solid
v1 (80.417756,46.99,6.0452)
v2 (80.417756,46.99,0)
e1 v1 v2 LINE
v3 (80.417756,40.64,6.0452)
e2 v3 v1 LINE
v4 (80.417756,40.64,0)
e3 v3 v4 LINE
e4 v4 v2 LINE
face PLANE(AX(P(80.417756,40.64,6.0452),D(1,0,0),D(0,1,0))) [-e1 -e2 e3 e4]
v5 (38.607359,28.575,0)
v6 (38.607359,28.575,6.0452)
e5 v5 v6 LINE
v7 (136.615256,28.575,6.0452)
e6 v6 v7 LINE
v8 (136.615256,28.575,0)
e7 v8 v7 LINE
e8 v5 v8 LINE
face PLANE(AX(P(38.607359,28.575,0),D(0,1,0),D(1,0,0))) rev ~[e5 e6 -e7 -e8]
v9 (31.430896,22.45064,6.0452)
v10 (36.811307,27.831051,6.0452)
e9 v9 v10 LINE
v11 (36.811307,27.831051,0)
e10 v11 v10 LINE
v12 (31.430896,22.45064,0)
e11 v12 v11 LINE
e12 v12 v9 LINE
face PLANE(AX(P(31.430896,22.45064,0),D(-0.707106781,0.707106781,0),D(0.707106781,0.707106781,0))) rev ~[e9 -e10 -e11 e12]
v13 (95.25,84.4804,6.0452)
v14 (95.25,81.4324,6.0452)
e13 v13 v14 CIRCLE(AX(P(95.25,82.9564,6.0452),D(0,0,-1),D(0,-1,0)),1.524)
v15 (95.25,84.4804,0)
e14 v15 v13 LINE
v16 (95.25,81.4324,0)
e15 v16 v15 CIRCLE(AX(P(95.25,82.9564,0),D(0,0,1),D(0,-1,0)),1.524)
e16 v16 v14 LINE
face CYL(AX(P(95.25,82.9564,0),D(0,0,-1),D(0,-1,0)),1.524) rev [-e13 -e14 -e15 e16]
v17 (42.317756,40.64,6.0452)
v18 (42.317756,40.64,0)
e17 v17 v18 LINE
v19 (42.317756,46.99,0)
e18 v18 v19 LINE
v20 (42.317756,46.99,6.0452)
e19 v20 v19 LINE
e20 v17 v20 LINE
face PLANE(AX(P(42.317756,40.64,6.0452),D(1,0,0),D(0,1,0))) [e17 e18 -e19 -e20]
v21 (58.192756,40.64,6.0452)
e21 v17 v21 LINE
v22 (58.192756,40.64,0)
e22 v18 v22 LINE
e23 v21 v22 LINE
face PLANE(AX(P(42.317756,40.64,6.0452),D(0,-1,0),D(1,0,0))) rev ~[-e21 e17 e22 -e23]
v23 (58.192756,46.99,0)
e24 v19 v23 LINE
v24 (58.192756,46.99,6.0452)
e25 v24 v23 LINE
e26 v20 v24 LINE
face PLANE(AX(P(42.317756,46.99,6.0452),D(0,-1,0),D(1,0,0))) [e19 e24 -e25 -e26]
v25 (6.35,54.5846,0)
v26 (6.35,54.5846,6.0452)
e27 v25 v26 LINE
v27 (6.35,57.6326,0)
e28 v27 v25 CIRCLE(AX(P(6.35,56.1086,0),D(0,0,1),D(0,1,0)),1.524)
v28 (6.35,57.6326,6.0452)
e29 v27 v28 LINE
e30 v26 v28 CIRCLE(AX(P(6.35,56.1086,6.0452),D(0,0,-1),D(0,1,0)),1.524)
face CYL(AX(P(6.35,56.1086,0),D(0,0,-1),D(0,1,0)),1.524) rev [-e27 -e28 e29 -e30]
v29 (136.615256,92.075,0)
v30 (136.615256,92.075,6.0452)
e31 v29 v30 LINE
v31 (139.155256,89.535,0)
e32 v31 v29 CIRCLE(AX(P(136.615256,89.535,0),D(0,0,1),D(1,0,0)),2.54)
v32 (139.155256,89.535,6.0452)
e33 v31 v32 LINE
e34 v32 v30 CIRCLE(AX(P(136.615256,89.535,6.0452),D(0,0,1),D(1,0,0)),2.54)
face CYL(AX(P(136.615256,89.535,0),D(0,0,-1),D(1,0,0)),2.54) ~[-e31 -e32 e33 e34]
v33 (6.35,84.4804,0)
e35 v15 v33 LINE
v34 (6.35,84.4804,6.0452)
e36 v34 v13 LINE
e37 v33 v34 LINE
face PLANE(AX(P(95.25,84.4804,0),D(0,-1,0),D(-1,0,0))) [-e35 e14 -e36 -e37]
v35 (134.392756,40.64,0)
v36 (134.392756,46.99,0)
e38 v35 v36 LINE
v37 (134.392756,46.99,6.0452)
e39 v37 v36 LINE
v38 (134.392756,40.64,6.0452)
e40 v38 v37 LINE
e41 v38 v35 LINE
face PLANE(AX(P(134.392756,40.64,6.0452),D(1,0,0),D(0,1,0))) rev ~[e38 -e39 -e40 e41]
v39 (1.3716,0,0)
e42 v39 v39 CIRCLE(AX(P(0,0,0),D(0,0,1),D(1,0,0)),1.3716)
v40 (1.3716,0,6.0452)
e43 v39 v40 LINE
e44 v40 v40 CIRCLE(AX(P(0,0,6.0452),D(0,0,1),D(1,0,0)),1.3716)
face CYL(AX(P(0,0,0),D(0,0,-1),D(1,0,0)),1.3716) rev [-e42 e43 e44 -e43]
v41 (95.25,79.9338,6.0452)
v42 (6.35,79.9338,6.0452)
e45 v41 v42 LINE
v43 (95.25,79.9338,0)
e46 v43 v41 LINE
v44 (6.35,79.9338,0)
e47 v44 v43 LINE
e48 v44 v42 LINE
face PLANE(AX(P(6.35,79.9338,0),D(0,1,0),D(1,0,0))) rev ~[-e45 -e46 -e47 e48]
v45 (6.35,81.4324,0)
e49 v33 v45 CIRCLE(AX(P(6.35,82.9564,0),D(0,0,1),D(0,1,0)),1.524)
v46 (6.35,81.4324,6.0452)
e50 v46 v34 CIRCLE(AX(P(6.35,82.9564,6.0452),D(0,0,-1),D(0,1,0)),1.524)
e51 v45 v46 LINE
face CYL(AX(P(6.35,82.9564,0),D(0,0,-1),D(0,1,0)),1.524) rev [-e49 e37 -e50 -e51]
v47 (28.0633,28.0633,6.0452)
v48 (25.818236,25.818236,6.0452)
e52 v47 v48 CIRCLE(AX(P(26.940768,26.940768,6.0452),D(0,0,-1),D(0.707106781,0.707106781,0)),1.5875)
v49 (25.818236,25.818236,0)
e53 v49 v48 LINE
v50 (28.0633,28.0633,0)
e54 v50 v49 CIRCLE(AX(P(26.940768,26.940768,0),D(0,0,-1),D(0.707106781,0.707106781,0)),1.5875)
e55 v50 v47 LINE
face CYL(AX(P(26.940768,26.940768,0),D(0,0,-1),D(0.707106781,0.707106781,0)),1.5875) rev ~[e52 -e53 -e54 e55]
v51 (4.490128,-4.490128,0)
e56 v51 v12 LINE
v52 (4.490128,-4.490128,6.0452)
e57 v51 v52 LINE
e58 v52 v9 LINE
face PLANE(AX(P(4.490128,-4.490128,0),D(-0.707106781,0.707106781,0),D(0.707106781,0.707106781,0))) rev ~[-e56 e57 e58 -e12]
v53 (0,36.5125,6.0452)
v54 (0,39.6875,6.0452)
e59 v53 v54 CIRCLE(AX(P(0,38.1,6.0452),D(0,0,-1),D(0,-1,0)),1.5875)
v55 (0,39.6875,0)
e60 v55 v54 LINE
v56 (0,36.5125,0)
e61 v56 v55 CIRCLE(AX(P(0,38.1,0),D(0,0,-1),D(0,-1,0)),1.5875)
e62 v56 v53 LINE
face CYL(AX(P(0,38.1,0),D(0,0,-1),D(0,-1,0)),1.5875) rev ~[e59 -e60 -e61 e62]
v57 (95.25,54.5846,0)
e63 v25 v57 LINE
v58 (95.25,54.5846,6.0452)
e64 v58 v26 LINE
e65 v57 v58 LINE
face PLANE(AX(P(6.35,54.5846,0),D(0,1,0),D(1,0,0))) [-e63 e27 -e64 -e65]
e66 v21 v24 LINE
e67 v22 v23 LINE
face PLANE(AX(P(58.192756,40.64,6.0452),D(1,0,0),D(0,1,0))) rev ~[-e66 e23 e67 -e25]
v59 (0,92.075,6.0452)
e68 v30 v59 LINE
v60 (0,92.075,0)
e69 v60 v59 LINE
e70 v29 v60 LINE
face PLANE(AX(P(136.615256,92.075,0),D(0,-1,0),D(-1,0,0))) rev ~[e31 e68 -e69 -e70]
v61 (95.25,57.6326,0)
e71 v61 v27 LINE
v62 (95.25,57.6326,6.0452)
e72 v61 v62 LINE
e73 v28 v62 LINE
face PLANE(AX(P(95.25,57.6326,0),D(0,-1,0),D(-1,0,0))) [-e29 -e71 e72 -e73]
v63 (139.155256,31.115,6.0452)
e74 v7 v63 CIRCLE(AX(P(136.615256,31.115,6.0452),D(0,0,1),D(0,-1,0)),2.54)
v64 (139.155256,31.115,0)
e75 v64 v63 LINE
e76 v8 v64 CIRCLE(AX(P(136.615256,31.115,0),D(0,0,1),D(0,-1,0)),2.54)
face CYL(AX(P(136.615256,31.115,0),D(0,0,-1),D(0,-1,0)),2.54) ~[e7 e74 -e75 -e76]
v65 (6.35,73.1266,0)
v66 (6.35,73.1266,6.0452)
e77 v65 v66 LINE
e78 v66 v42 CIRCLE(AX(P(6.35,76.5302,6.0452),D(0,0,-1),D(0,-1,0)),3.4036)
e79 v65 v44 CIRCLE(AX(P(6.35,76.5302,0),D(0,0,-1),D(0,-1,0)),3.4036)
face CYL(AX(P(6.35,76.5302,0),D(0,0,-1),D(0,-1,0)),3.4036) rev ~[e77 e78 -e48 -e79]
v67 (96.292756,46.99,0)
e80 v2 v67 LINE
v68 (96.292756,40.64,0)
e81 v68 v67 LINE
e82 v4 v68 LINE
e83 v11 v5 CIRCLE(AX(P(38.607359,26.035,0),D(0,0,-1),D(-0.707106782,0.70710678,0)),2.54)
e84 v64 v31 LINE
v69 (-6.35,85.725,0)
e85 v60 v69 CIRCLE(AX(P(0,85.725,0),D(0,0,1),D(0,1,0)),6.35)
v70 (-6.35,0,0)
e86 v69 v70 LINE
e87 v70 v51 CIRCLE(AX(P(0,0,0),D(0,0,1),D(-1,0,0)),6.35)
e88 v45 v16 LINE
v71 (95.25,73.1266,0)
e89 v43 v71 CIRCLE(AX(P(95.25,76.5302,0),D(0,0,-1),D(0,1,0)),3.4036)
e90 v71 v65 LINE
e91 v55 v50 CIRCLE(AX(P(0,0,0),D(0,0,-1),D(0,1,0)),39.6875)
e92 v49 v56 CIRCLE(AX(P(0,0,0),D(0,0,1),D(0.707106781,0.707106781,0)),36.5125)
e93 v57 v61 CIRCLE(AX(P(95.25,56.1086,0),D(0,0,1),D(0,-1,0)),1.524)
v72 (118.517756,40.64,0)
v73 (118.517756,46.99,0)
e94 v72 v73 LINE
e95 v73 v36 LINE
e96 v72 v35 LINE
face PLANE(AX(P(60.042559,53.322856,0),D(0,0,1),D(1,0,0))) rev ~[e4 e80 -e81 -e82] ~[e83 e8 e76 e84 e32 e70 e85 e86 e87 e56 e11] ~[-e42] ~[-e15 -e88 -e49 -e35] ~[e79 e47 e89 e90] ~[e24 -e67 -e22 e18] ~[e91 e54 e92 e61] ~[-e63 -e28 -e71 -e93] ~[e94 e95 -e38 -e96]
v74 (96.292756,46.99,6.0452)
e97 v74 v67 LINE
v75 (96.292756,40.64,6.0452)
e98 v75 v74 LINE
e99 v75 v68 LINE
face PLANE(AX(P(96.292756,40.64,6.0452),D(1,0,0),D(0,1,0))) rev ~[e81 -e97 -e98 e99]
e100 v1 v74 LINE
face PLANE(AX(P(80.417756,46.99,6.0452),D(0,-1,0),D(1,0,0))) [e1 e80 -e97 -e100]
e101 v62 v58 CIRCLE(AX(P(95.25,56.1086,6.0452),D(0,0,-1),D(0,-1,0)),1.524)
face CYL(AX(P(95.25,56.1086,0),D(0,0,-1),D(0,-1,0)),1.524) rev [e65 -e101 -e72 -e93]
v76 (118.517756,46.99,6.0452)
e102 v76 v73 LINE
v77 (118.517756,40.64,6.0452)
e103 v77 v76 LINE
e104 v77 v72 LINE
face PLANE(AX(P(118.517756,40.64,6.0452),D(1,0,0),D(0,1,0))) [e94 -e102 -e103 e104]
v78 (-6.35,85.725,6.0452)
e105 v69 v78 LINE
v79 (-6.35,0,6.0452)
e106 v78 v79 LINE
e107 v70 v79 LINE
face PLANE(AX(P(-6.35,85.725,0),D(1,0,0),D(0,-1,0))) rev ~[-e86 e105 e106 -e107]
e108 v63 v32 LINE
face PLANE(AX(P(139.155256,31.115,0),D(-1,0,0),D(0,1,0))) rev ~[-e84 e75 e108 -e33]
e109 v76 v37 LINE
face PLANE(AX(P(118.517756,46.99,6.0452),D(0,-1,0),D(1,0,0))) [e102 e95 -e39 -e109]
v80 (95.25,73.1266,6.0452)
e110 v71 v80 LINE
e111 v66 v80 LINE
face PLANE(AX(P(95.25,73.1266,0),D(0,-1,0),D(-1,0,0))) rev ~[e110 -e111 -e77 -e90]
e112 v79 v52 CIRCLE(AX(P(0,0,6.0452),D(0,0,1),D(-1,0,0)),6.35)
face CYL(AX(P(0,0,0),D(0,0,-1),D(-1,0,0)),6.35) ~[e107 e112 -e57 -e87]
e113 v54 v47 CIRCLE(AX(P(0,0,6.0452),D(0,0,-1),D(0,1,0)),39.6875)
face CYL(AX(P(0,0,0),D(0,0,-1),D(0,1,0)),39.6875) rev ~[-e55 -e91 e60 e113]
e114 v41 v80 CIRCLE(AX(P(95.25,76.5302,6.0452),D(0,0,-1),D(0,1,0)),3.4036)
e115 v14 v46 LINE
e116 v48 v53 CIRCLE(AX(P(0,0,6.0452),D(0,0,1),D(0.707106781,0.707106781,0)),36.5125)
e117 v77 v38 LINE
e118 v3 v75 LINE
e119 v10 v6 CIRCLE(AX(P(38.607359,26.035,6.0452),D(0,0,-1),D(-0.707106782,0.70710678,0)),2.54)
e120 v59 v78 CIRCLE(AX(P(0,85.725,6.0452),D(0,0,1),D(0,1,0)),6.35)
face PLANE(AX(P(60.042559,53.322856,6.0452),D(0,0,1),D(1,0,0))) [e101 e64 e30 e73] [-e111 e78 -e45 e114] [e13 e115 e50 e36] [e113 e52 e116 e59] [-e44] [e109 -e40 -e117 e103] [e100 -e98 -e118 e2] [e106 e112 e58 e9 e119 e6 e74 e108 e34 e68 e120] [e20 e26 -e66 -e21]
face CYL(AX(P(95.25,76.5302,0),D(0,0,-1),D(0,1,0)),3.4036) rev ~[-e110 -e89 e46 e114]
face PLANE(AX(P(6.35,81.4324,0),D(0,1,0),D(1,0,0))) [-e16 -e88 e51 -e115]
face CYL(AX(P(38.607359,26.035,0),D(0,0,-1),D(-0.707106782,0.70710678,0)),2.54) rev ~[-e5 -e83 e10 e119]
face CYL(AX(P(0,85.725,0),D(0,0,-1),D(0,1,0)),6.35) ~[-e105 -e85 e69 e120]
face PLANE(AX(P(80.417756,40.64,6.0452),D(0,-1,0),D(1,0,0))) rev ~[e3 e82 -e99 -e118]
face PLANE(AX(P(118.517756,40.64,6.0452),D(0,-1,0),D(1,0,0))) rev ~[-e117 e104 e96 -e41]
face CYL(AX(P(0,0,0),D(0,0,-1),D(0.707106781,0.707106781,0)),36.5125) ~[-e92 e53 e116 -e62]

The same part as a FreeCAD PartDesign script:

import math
import FreeCAD as App
import Part
import Sketcher
Q = App.Units.Quantity

doc = App.newDocument("Part")
body = doc.addObject("PartDesign::Body", "Body")

# Sketch on XY plane
sketch1 = doc.addObject("Sketcher::SketchObject", "Sketch")
body.addObject(sketch1)
sketch1.AttachmentSupport = (doc.XY_Plane, [""])
sketch1.MapMode = "FlatFace"
sketch1.addGeometry(Part.LineSegment(App.Vector(-6.3, 85.7, 0), App.Vector(-6.3, 0, 0)), False)
sketch1.addGeometry(Part.ArcOfCircle(Part.Circle(App.Vector(0, 0, 0), App.Vector(0, 0, 1), 6.4), math.radians(-180), math.radians(-45)), False)
sketch1.addGeometry(Part.LineSegment(App.Vector(4.5, -4.5, 0), App.Vector(31.4, 22.5, 0)), False)
sketch1.addGeometry(Part.LineSegment(App.Vector(31.4, 22.5, 0), App.Vector(36.8, 27.8, 0)), False)
sketch1.addGeometry(Part.ArcOfCircle(Part.Circle(App.Vector(38.6, 26, 0), App.Vector(0, 0, 1), 2.5), math.radians(90), math.radians(135)), False)
sketch1.addGeometry(Part.LineSegment(App.Vector(38.6, 28.6, 0), App.Vector(136.6, 28.6, 0)), False)
sketch1.addGeometry(Part.ArcOfCircle(Part.Circle(App.Vector(136.6, 31.1, 0), App.Vector(0, 0, 1), 2.5), math.radians(-90), math.radians(0)), False)
sketch1.addGeometry(Part.LineSegment(App.Vector(139.2, 31.1, 0), App.Vector(139.2, 89.5, 0)), False)
sketch1.addGeometry(Part.ArcOfCircle(Part.Circle(App.Vector(136.6, 89.5, 0), App.Vector(0, 0, 1), 2.5), math.radians(0), math.radians(90)), False)
sketch1.addGeometry(Part.LineSegment(App.Vector(136.6, 92.1, 0), App.Vector(0, 92.1, 0)), False)
sketch1.addGeometry(Part.ArcOfCircle(Part.Circle(App.Vector(0, 85.7, 0), App.Vector(0, 0, 1), 6.3), math.radians(90), math.radians(180)), False)
sketch1.addGeometry(Part.Circle(App.Vector(0, 0, 0), App.Vector(0, 0, 1), 1.4), False)
sketch1.addGeometry(Part.ArcOfCircle(Part.Circle(App.Vector(26.9, 26.9, 0), App.Vector(0, 0, 1), 1.6), math.radians(-135), math.radians(45)), False)
sketch1.addGeometry(Part.ArcOfCircle(Part.Circle(App.Vector(0, 0, 0), App.Vector(0, 0, 1), 36.5), math.radians(45), math.radians(90)), False)
sketch1.addGeometry(Part.ArcOfCircle(Part.Circle(App.Vector(0, 38.1, 0), App.Vector(0, 0, 1), 1.6), math.radians(90), math.radians(270)), False)
sketch1.addGeometry(Part.ArcOfCircle(Part.Circle(App.Vector(0, 0, 0), App.Vector(0, 0, 1), 39.7), math.radians(45), math.radians(90)), False)
sketch1.addConstraint(Sketcher.Constraint("Tangent", 0, 2, 1, 1))
sketch1.addConstraint(Sketcher.Constraint("Tangent", 1, 2, 2, 1))
sketch1.addConstraint(Sketcher.Constraint("Coincident", 2, 2, 3, 1))
sketch1.addConstraint(Sketcher.Constraint("Tangent", 3, 2, 4, 2))
sketch1.addConstraint(Sketcher.Constraint("Tangent", 4, 1, 5, 1))
sketch1.addConstraint(Sketcher.Constraint("Tangent", 5, 2, 6, 1))
sketch1.addConstraint(Sketcher.Constraint("Tangent", 6, 2, 7, 1))
sketch1.addConstraint(Sketcher.Constraint("Tangent", 7, 2, 8, 1))
sketch1.addConstraint(Sketcher.Constraint("Tangent", 8, 2, 9, 1))
sketch1.addConstraint(Sketcher.Constraint("Tangent", 9, 2, 10, 1))
sketch1.addConstraint(Sketcher.Constraint("Tangent", 10, 2, 0, 1))
sketch1.addConstraint(Sketcher.Constraint("Tangent", 12, 1, 13, 1))
sketch1.addConstraint(Sketcher.Constraint("Tangent", 13, 2, 14, 2))
sketch1.addConstraint(Sketcher.Constraint("Tangent", 14, 1, 15, 2))
sketch1.addConstraint(Sketcher.Constraint("Tangent", 15, 1, 12, 2))
sketch1.addConstraint(Sketcher.Constraint("Vertical", 0))
sketch1.addConstraint(Sketcher.Constraint("Horizontal", 5))
sketch1.addConstraint(Sketcher.Constraint("Vertical", 7))
sketch1.addConstraint(Sketcher.Constraint("Horizontal", 9))
sketch1.addConstraint(Sketcher.Constraint("Coincident", 1, 3, -1, 1))
sketch1.addConstraint(Sketcher.Constraint("Coincident", 11, 3, -1, 1))
sketch1.addConstraint(Sketcher.Constraint("Coincident", 13, 3, -1, 1))
sketch1.addConstraint(Sketcher.Constraint("Coincident", 15, 3, -1, 1))
sketch1.addConstraint(Sketcher.Constraint("Equal", 4, 6))
sketch1.addConstraint(Sketcher.Constraint("Equal", 6, 8))
sketch1.addConstraint(Sketcher.Constraint("Equal", 1, 10))
sketch1.addConstraint(Sketcher.Constraint("PointOnObject", 14, 3, -2))
sketch1.addConstraint(Sketcher.Constraint("Parallel", 2, 3))
sketch1.addConstraint(Sketcher.Constraint("Radius", 4, Q("0.1 in")))
sketch1.addConstraint(Sketcher.Constraint("Radius", 1, Q("0.25 in")))
sketch1.addConstraint(Sketcher.Constraint("Diameter", 11, Q("0.108 in")))
sketch1.addConstraint(Sketcher.Constraint("DistanceY", 7, 1, 7, 2, Q("2.3 in")))
sketch1.addConstraint(Sketcher.Constraint("Angle", 2, Q("45 deg")))
sketch1.addConstraint(Sketcher.Constraint("Radius", 12, Q("0.0625 in")))
sketch1.addConstraint(Sketcher.Constraint("Radius", 13, Q("1.4375 in")))
sketch1.addConstraint(Sketcher.Constraint("Distance", 2, Q("1.5 in")))
sketch1.addConstraint(Sketcher.Constraint("DistanceY", 0, 2, 0, 1, Q("3.375 in")))
sketch1.addConstraint(Sketcher.Constraint("DistanceX", -1, 1, 15, 1, 28.0633))
sketch1.addConstraint(Sketcher.Constraint("DistanceX", 5, 1, 5, 2, 98.007898))
pad1 = doc.addObject("PartDesign::Pad", "Pad")
body.addObject(pad1)
pad1.Profile = sketch1
pad1.Length = Q("0.238 in")

# Sketch on XY plane
sketch2 = doc.addObject("Sketcher::SketchObject", "Sketch001")
body.addObject(sketch2)
sketch2.AttachmentSupport = (doc.XY_Plane, [""])
sketch2.MapMode = "FlatFace"
sketch2.AttachmentOffset = App.Placement(App.Vector(0, 0, 0.238 * 25.4), App.Rotation())
sketch2.addGeometry(Part.LineSegment(App.Vector(119, 47, 0), App.Vector(119, 41, 0)), False)
sketch2.addGeometry(Part.LineSegment(App.Vector(119, 41, 0), App.Vector(134, 41, 0)), False)
sketch2.addGeometry(Part.LineSegment(App.Vector(134, 41, 0), App.Vector(134, 47, 0)), False)
sketch2.addGeometry(Part.LineSegment(App.Vector(134, 47, 0), App.Vector(119, 47, 0)), False)
sketch2.addGeometry(Part.LineSegment(App.Vector(80, 47, 0), App.Vector(80, 41, 0)), False)
sketch2.addGeometry(Part.LineSegment(App.Vector(80, 41, 0), App.Vector(96, 41, 0)), False)
sketch2.addGeometry(Part.LineSegment(App.Vector(96, 41, 0), App.Vector(96, 47, 0)), False)
sketch2.addGeometry(Part.LineSegment(App.Vector(96, 47, 0), App.Vector(80, 47, 0)), False)
sketch2.addGeometry(Part.LineSegment(App.Vector(42, 47, 0), App.Vector(42, 41, 0)), False)
sketch2.addGeometry(Part.LineSegment(App.Vector(42, 41, 0), App.Vector(58, 41, 0)), False)
sketch2.addGeometry(Part.LineSegment(App.Vector(58, 41, 0), App.Vector(58, 47, 0)), False)
sketch2.addGeometry(Part.LineSegment(App.Vector(58, 47, 0), App.Vector(42, 47, 0)), False)
sketch2.addConstraint(Sketcher.Constraint("Coincident", 0, 2, 1, 1))
sketch2.addConstraint(Sketcher.Constraint("Coincident", 1, 2, 2, 1))
sketch2.addConstraint(Sketcher.Constraint("Coincident", 2, 2, 3, 1))
sketch2.addConstraint(Sketcher.Constraint("Coincident", 3, 2, 0, 1))
sketch2.addConstraint(Sketcher.Constraint("Coincident", 4, 2, 5, 1))
sketch2.addConstraint(Sketcher.Constraint("Coincident", 5, 2, 6, 1))
sketch2.addConstraint(Sketcher.Constraint("Coincident", 6, 2, 7, 1))
sketch2.addConstraint(Sketcher.Constraint("Coincident", 7, 2, 4, 1))
sketch2.addConstraint(Sketcher.Constraint("Coincident", 8, 2, 9, 1))
sketch2.addConstraint(Sketcher.Constraint("Coincident", 9, 2, 10, 1))
sketch2.addConstraint(Sketcher.Constraint("Coincident", 10, 2, 11, 1))
sketch2.addConstraint(Sketcher.Constraint("Coincident", 11, 2, 8, 1))
sketch2.addConstraint(Sketcher.Constraint("Vertical", 0))
sketch2.addConstraint(Sketcher.Constraint("Horizontal", 1))
sketch2.addConstraint(Sketcher.Constraint("Vertical", 2))
sketch2.addConstraint(Sketcher.Constraint("Horizontal", 3))
sketch2.addConstraint(Sketcher.Constraint("Vertical", 4))
sketch2.addConstraint(Sketcher.Constraint("Horizontal", 5))
sketch2.addConstraint(Sketcher.Constraint("Vertical", 6))
sketch2.addConstraint(Sketcher.Constraint("Horizontal", 7))
sketch2.addConstraint(Sketcher.Constraint("Vertical", 8))
sketch2.addConstraint(Sketcher.Constraint("Horizontal", 9))
sketch2.addConstraint(Sketcher.Constraint("Vertical", 10))
sketch2.addConstraint(Sketcher.Constraint("Horizontal", 11))
sketch2.addConstraint(Sketcher.Constraint("Horizontal", 1, 2, 4, 2))
sketch2.addConstraint(Sketcher.Constraint("Horizontal", 3, 2, 6, 2))
sketch2.addConstraint(Sketcher.Constraint("Horizontal", 5, 2, 8, 2))
sketch2.addConstraint(Sketcher.Constraint("Horizontal", 7, 2, 10, 2))
sketch2.addConstraint(Sketcher.Constraint("Equal", 3, 5))
sketch2.addConstraint(Sketcher.Constraint("Equal", 7, 9))
sketch2.addConstraint(Sketcher.Constraint("DistanceX", 8, 2, 0, 2, Q("3 in")))
sketch2.addConstraint(Sketcher.Constraint("DistanceY", 0, 2, 0, 1, Q("0.25 in")))
sketch2.addConstraint(Sketcher.Constraint("DistanceY", -1, 1, 0, 2, Q("1.6 in")))
sketch2.addConstraint(Sketcher.Constraint("DistanceX", 4, 2, 0, 2, Q("1.5 in")))
sketch2.addConstraint(Sketcher.Constraint("DistanceX", 1, 1, 1, 2, Q("0.625 in")))
sketch2.addConstraint(Sketcher.Constraint("DistanceX", -1, 1, 0, 2, 118.517756))
pocket1 = doc.addObject("PartDesign::Pocket", "Pocket")
body.addObject(pocket1)
pocket1.Profile = sketch2
pocket1.Length = Q("0.238 in")

# Sketch on XY plane
sketch3 = doc.addObject("Sketcher::SketchObject", "Sketch002")
body.addObject(sketch3)
sketch3.AttachmentSupport = (doc.XY_Plane, [""])
sketch3.MapMode = "FlatFace"
sketch3.addGeometry(Part.LineSegment(App.Vector(6.3, 84.5, 0), App.Vector(95.2, 84.5, 0)), False)
sketch3.addGeometry(Part.ArcOfCircle(Part.Circle(App.Vector(95.2, 83, 0), App.Vector(0, 0, 1), 1.5), math.radians(-90), math.radians(90)), False)
sketch3.addGeometry(Part.LineSegment(App.Vector(95.2, 81.4, 0), App.Vector(6.3, 81.4, 0)), False)
sketch3.addGeometry(Part.ArcOfCircle(Part.Circle(App.Vector(6.3, 83, 0), App.Vector(0, 0, 1), 1.5), math.radians(90), math.radians(270)), False)
sketch3.addGeometry(Part.LineSegment(App.Vector(6.3, 57.6, 0), App.Vector(95.2, 57.6, 0)), False)
sketch3.addGeometry(Part.ArcOfCircle(Part.Circle(App.Vector(95.2, 56.1, 0), App.Vector(0, 0, 1), 1.5), math.radians(-90), math.radians(90)), False)
sketch3.addGeometry(Part.LineSegment(App.Vector(95.2, 54.6, 0), App.Vector(6.3, 54.6, 0)), False)
sketch3.addGeometry(Part.ArcOfCircle(Part.Circle(App.Vector(6.3, 56.1, 0), App.Vector(0, 0, 1), 1.5), math.radians(90), math.radians(270)), False)
sketch3.addGeometry(Part.LineSegment(App.Vector(95.2, 73.1, 0), App.Vector(6.3, 73.1, 0)), False)
sketch3.addGeometry(Part.ArcOfCircle(Part.Circle(App.Vector(6.3, 76.5, 0), App.Vector(0, 0, 1), 3.4), math.radians(90), math.radians(270)), False)
sketch3.addGeometry(Part.LineSegment(App.Vector(6.3, 79.9, 0), App.Vector(95.2, 79.9, 0)), False)
sketch3.addGeometry(Part.ArcOfCircle(Part.Circle(App.Vector(95.2, 76.5, 0), App.Vector(0, 0, 1), 3.4), math.radians(-90), math.radians(90)), False)
sketch3.addConstraint(Sketcher.Constraint("Tangent", 0, 2, 1, 2))
sketch3.addConstraint(Sketcher.Constraint("Tangent", 1, 1, 2, 1))
sketch3.addConstraint(Sketcher.Constraint("Tangent", 2, 2, 3, 2))
sketch3.addConstraint(Sketcher.Constraint("Tangent", 3, 1, 0, 1))
sketch3.addConstraint(Sketcher.Constraint("Tangent", 4, 2, 5, 2))
sketch3.addConstraint(Sketcher.Constraint("Tangent", 5, 1, 6, 1))
sketch3.addConstraint(Sketcher.Constraint("Tangent", 6, 2, 7, 2))
sketch3.addConstraint(Sketcher.Constraint("Tangent", 7, 1, 4, 1))
sketch3.addConstraint(Sketcher.Constraint("Tangent", 8, 2, 9, 2))
sketch3.addConstraint(Sketcher.Constraint("Tangent", 9, 1, 10, 1))
sketch3.addConstraint(Sketcher.Constraint("Tangent", 10, 2, 11, 2))
sketch3.addConstraint(Sketcher.Constraint("Tangent", 11, 1, 8, 1))
sketch3.addConstraint(Sketcher.Constraint("Horizontal", 0))
sketch3.addConstraint(Sketcher.Constraint("Horizontal", 2))
sketch3.addConstraint(Sketcher.Constraint("Horizontal", 4))
sketch3.addConstraint(Sketcher.Constraint("Horizontal", 6))
sketch3.addConstraint(Sketcher.Constraint("Horizontal", 8))
sketch3.addConstraint(Sketcher.Constraint("Horizontal", 10))
sketch3.addConstraint(Sketcher.Constraint("Equal", 3, 5))
sketch3.addConstraint(Sketcher.Constraint("Vertical", 1, 3, 5, 3))
sketch3.addConstraint(Sketcher.Constraint("Vertical", 3, 3, 7, 3))
sketch3.addConstraint(Sketcher.Constraint("Vertical", 7, 3, 9, 3))
sketch3.addConstraint(Sketcher.Constraint("Vertical", 5, 3, 11, 3))
sketch3.addConstraint(Sketcher.Constraint("Radius", 1, Q("0.06 in")))
sketch3.addConstraint(Sketcher.Constraint("DistanceX", 0, 1, 0, 2, Q("3.5 in")))
sketch3.addConstraint(Sketcher.Constraint("Radius", 9, Q("0.134 in")))
sketch3.addConstraint(Sketcher.Constraint("DistanceX", -1, 1, 1, 3, Q("3.75 in")))
sketch3.addConstraint(Sketcher.Constraint("DistanceY", 7, 1, 8, 2, Q("0.61 in")))
sketch3.addConstraint(Sketcher.Constraint("DistanceY", -1, 1, 1, 3, Q("3.266 in")))
sketch3.addConstraint(Sketcher.Constraint("DistanceY", -1, 1, 5, 3, Q("2.209 in")))
pocket2 = doc.addObject("PartDesign::Pocket", "Pocket001")
body.addObject(pocket2)
pocket2.Profile = sketch3
pocket2.Length = Q("0.3 in")
pocket2.Reversed = True

doc.recompute()
